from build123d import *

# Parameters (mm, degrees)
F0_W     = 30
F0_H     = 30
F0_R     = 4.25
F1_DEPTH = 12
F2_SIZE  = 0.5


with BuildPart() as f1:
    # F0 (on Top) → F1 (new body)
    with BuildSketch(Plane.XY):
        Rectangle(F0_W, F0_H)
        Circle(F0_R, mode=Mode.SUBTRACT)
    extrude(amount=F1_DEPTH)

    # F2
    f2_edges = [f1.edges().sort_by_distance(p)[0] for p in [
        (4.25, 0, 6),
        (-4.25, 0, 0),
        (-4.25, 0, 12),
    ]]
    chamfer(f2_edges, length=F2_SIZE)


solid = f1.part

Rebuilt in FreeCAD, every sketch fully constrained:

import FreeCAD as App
import Part
import Sketcher
from FreeCAD import Vector
Q = App.Units.Quantity


def edges_at(feature, points):
    """Names of the edges that pass closest to the given points."""
    edges = feature.Shape.Edges
    near = lambda p: min(range(len(edges)), key=lambda i: edges[i].distToShape(Part.Vertex(*p))[0])
    return sorted({f"Edge{near(p) + 1}" for p in points})

doc = App.newDocument("Part")
body = doc.addObject("PartDesign::Body", "Body")

sketch1 = doc.addObject("Sketcher::SketchObject", "Sketch")
body.addObject(sketch1)
sketch1.AttachmentSupport = (doc.XY_Plane, [""])
sketch1.MapMode = "FlatFace"
sketch1.addGeometry(Part.LineSegment(Vector(-15, 15, 0), Vector(-15, -15, 0)), False)
sketch1.addGeometry(Part.LineSegment(Vector(-15, -15, 0), Vector(15, -15, 0)), False)
sketch1.addGeometry(Part.LineSegment(Vector(15, -15, 0), Vector(15, 15, 0)), False)
sketch1.addGeometry(Part.LineSegment(Vector(15, 15, 0), Vector(-15, 15, 0)), False)
sketch1.addGeometry(Part.Circle(Vector(0, 0, 0), Vector(0, 0, 1), 4.2), False)
sketch1.addConstraint(Sketcher.Constraint("Coincident", 0, 2, 1, 1))
sketch1.addConstraint(Sketcher.Constraint("Coincident", 1, 2, 2, 1))
sketch1.addConstraint(Sketcher.Constraint("Coincident", 2, 2, 3, 1))
sketch1.addConstraint(Sketcher.Constraint("Coincident", 3, 2, 0, 1))
sketch1.addConstraint(Sketcher.Constraint("Vertical", 0))
sketch1.addConstraint(Sketcher.Constraint("Horizontal", 1))
sketch1.addConstraint(Sketcher.Constraint("Vertical", 2))
sketch1.addConstraint(Sketcher.Constraint("Horizontal", 3))
sketch1.addConstraint(Sketcher.Constraint("Coincident", 4, 3, -1, 1))
sketch1.addConstraint(Sketcher.Constraint("Symmetric", 0, 2, 2, 2, -1, 1))
sketch1.addConstraint(Sketcher.Constraint("Equal", 3, 0))
sketch1.addConstraint(Sketcher.Constraint("Diameter", 4, Q("8.5 mm")))
sketch1.addConstraint(Sketcher.Constraint("DistanceX", 1, 1, 1, 2, Q("30 mm")))
pad1 = doc.addObject("PartDesign::Pad", "Pad")
body.addObject(pad1)
pad1.Profile = sketch1
pad1.Length = 12
doc.recompute()

chamfer = doc.addObject("PartDesign::Chamfer", "Chamfer")
body.addObject(chamfer)
chamfer.Base = (pad1, edges_at(pad1, [(4.25, 0, 6), (-4.25, 0, 0), (-4.25, 0, 12)]))
chamfer.Size = 0.5

doc.recompute()
